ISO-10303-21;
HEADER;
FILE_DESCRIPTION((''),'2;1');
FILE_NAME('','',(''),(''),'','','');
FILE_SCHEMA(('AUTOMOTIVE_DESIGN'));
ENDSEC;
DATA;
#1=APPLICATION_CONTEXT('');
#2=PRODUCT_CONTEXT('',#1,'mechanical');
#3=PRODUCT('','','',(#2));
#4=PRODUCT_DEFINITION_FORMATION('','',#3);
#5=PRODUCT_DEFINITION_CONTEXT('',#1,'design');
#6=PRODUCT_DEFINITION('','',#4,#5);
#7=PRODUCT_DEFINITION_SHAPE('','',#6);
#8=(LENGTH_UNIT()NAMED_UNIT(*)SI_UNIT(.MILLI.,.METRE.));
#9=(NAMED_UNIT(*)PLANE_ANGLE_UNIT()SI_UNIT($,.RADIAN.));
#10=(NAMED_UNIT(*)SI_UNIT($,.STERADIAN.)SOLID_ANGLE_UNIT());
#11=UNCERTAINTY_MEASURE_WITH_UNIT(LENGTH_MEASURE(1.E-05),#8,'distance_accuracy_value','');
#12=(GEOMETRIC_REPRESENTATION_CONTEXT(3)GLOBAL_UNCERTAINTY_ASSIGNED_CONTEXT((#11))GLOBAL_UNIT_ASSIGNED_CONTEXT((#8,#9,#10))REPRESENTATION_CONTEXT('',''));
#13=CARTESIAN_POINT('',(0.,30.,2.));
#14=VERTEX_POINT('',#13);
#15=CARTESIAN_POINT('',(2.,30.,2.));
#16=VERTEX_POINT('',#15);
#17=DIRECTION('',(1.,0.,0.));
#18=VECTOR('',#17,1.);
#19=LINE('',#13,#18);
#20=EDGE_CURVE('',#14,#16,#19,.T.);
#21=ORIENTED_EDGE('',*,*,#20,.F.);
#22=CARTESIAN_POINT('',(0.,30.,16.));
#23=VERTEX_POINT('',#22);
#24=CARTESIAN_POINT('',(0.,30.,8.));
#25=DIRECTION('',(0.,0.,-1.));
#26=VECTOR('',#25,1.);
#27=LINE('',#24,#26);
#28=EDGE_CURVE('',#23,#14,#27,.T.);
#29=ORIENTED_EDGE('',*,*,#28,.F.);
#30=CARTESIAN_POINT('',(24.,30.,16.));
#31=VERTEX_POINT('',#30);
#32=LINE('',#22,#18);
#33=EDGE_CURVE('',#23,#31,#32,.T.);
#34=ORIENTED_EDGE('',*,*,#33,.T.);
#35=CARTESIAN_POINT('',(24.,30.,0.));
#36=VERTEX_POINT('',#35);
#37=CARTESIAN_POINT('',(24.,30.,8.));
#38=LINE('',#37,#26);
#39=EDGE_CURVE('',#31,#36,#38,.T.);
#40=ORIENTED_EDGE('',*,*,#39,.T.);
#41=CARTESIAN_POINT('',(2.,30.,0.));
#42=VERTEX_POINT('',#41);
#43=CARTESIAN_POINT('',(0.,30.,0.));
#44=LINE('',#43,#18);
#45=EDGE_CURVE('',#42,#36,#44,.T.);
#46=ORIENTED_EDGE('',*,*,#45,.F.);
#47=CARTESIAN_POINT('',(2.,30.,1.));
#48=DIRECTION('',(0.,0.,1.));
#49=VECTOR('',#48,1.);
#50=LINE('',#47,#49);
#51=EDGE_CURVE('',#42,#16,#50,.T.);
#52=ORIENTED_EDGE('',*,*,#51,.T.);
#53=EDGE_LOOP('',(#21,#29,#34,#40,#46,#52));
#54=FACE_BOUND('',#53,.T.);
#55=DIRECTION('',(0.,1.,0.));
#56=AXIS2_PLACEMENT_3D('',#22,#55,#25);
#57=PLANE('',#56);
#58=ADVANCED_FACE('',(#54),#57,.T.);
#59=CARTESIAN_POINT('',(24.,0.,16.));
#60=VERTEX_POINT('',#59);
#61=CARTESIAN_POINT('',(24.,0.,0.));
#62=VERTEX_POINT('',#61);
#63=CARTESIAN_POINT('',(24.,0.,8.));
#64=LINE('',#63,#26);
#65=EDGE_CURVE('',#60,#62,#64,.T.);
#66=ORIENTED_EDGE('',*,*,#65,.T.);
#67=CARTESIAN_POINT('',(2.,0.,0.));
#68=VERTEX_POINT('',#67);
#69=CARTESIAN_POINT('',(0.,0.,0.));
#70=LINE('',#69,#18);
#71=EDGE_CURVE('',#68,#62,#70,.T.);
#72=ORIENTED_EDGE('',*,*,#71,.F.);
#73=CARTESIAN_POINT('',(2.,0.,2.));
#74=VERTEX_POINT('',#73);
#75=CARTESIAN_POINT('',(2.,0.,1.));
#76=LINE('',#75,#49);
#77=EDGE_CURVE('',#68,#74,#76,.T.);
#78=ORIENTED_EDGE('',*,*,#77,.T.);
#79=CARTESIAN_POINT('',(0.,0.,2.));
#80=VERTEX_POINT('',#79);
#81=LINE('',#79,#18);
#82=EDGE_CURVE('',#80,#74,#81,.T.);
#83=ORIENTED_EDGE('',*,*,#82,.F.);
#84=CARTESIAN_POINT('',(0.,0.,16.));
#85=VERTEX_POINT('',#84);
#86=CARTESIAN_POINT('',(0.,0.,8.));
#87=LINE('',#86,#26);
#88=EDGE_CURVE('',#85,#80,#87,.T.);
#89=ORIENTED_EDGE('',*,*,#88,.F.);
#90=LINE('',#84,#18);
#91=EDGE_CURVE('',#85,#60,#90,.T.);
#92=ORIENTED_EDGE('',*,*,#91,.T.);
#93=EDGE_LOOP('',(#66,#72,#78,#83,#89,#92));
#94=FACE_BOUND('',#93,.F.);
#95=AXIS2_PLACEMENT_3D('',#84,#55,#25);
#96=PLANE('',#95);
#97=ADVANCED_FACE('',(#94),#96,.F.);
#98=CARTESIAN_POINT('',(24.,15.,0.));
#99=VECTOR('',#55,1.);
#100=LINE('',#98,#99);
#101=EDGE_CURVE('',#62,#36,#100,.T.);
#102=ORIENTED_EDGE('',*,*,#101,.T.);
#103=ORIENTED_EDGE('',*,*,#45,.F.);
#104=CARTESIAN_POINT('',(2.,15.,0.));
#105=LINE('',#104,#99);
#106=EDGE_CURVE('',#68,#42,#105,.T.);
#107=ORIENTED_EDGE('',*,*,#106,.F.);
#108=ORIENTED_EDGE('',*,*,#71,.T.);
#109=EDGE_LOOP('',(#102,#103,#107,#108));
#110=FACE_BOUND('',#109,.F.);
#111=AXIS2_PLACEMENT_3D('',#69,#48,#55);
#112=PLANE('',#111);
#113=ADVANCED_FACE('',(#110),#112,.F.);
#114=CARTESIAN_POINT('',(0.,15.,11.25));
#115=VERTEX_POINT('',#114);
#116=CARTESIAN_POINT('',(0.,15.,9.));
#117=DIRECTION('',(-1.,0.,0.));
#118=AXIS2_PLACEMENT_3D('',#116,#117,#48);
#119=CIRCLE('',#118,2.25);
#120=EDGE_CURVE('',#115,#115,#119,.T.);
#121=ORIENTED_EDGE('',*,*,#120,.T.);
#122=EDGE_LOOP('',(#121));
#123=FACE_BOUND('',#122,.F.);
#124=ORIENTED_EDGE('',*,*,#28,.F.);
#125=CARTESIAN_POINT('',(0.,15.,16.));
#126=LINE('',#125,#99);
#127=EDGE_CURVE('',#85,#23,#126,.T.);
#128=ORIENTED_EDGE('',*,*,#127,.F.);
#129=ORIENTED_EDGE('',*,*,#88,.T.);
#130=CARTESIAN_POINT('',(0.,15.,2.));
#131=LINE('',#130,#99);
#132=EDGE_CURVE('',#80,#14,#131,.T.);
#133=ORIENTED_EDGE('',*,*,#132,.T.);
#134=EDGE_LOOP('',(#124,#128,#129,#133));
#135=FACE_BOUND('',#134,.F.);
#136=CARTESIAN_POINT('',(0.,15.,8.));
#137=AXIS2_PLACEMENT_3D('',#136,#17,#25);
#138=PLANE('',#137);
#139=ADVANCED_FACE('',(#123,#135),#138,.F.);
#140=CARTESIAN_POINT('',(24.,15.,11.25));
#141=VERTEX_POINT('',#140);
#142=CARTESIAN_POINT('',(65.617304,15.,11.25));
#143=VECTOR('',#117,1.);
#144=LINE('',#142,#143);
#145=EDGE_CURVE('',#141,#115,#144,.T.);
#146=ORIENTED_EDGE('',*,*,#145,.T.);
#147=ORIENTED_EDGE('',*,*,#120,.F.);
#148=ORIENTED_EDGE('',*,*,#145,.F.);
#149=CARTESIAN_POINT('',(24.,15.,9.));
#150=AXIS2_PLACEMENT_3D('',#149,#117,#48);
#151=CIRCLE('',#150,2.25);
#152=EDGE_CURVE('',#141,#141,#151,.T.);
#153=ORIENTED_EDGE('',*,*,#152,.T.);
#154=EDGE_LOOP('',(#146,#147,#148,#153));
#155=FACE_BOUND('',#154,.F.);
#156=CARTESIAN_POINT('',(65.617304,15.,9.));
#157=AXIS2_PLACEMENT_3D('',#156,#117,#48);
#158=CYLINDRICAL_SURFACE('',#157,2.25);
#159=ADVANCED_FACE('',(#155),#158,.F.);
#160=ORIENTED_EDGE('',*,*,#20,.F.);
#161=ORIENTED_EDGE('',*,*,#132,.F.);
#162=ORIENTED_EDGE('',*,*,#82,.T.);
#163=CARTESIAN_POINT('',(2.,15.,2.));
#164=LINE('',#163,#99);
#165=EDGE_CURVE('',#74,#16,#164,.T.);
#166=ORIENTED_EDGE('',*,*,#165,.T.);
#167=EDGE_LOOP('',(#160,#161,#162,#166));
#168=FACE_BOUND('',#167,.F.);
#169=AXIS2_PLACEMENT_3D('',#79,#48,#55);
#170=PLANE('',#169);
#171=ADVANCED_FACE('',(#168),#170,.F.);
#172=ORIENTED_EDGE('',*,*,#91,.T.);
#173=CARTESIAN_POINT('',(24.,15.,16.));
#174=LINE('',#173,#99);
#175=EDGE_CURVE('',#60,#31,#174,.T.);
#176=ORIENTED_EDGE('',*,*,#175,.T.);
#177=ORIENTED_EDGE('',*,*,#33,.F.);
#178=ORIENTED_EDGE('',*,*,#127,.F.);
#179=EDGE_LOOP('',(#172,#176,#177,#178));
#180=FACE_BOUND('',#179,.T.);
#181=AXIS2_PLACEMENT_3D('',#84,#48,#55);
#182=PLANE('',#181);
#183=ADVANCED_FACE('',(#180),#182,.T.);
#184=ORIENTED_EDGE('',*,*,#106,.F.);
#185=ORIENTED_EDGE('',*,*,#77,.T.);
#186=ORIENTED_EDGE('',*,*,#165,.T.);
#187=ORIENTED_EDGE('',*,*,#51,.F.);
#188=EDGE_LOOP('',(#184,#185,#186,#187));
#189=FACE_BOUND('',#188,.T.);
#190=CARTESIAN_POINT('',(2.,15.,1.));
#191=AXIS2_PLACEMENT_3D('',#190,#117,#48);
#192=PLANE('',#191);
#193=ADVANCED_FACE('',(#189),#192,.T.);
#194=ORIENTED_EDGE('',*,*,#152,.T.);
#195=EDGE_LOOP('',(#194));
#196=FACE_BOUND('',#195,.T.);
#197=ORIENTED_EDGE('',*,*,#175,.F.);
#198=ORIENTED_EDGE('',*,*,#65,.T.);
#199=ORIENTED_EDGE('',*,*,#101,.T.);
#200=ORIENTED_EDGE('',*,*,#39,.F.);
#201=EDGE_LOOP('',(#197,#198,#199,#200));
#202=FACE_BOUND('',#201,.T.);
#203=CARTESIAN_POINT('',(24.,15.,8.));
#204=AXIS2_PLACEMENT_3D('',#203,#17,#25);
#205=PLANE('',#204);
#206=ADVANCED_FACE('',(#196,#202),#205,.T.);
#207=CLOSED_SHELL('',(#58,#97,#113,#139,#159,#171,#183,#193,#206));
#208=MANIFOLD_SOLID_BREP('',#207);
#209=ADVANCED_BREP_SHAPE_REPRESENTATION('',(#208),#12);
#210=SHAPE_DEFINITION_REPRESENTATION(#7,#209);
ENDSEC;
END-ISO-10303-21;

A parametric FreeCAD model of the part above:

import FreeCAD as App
import Part
import Sketcher

V = App.Vector

doc = App.newDocument("Part")
body = doc.addObject("PartDesign::Body", "Body")

# Sketch on YZ plane
sketch1 = body.newObject("Sketcher::SketchObject", "Sketch")
sketch1.AttachmentSupport = (doc.getObject("YZ_Plane"), [""])
sketch1.MapMode = "FlatFace"
sketch1.addGeometry([
    Part.LineSegment(V(30, 16, 0), V(0, 16, 0)),
    Part.LineSegment(V(0, 16, 0), V(0, 0, 0)),
    Part.LineSegment(V(0, 0, 0), V(30, 0, 0)),
    Part.LineSegment(V(30, 0, 0), V(30, 16, 0)),
], False)
sketch1.addConstraint([
    Sketcher.Constraint("Coincident", 0, 2, 1, 1),
    Sketcher.Constraint("Coincident", 1, 2, 2, 1),
    Sketcher.Constraint("Coincident", 2, 2, 3, 1),
    Sketcher.Constraint("Coincident", 3, 2, 0, 1),
    Sketcher.Constraint("Horizontal", 0),
    Sketcher.Constraint("Vertical", 1),
    Sketcher.Constraint("Horizontal", 2),
    Sketcher.Constraint("Vertical", 3),
    Sketcher.Constraint("Coincident", 1, 2, -1, 1),
    Sketcher.Constraint("DistanceX", 0, 2, 0, 1, 30.0),
    Sketcher.Constraint("DistanceY", 1, 2, 1, 1, 16.0),
])
pad1 = body.newObject("PartDesign::Pad", "Pad")
pad1.Profile = sketch1
pad1.Length = 24

# Sketch on YZ plane
sketch2 = body.newObject("Sketcher::SketchObject", "Sketch001")
sketch2.AttachmentSupport = (doc.getObject("YZ_Plane"), [""])
sketch2.MapMode = "FlatFace"
sketch2.addGeometry([
    Part.LineSegment(V(30, 0, 0), V(0, 0, 0)),
    Part.LineSegment(V(0, 0, 0), V(0, 2, 0)),
    Part.LineSegment(V(0, 2, 0), V(30, 2, 0)),
    Part.LineSegment(V(30, 2, 0), V(30, 0, 0)),
], False)
sketch2.addConstraint([
    Sketcher.Constraint("Coincident", 0, 2, 1, 1),
    Sketcher.Constraint("Coincident", 1, 2, 2, 1),
    Sketcher.Constraint("Coincident", 2, 2, 3, 1),
    Sketcher.Constraint("Coincident", 3, 2, 0, 1),
    Sketcher.Constraint("Horizontal", 0),
    Sketcher.Constraint("Vertical", 1),
    Sketcher.Constraint("Horizontal", 2),
    Sketcher.Constraint("Vertical", 3),
    Sketcher.Constraint("Coincident", 0, 2, -1, 1),
    Sketcher.Constraint("DistanceX", 0, 2, 0, 1, 30.0),
    Sketcher.Constraint("DistanceY", 1, 1, 1, 2, 2.0),
])
pocket1 = body.newObject("PartDesign::Pocket", "Pocket")
pocket1.Profile = sketch2
pocket1.Length = 2
pocket1.Reversed = True

# Sketch on YZ plane
sketch3 = body.newObject("Sketcher::SketchObject", "Sketch002")
sketch3.AttachmentSupport = (doc.getObject("YZ_Plane"), [""])
sketch3.MapMode = "FlatFace"
sketch3.AttachmentOffset = App.Placement(V(0, 0, 24), App.Rotation())
sketch3.addGeometry(Part.Circle(V(15, 9, 0), V(0, 0, 1), 2.2), False)
sketch3.addConstraint([
    Sketcher.Constraint("Diameter", 0, 4.5),
    Sketcher.Constraint("DistanceX", -1, 1, 0, 3, 15.0),
    Sketcher.Constraint("DistanceY", -1, 1, 0, 3, 9.0),
])
doc.recompute()
hole = body.newObject("PartDesign::Hole", "Hole")
hole.Profile = sketch3
hole.ThreadType = "None"
hole.Diameter = 4.5
hole.DepthType = "ThroughAll"

doc.recompute()
